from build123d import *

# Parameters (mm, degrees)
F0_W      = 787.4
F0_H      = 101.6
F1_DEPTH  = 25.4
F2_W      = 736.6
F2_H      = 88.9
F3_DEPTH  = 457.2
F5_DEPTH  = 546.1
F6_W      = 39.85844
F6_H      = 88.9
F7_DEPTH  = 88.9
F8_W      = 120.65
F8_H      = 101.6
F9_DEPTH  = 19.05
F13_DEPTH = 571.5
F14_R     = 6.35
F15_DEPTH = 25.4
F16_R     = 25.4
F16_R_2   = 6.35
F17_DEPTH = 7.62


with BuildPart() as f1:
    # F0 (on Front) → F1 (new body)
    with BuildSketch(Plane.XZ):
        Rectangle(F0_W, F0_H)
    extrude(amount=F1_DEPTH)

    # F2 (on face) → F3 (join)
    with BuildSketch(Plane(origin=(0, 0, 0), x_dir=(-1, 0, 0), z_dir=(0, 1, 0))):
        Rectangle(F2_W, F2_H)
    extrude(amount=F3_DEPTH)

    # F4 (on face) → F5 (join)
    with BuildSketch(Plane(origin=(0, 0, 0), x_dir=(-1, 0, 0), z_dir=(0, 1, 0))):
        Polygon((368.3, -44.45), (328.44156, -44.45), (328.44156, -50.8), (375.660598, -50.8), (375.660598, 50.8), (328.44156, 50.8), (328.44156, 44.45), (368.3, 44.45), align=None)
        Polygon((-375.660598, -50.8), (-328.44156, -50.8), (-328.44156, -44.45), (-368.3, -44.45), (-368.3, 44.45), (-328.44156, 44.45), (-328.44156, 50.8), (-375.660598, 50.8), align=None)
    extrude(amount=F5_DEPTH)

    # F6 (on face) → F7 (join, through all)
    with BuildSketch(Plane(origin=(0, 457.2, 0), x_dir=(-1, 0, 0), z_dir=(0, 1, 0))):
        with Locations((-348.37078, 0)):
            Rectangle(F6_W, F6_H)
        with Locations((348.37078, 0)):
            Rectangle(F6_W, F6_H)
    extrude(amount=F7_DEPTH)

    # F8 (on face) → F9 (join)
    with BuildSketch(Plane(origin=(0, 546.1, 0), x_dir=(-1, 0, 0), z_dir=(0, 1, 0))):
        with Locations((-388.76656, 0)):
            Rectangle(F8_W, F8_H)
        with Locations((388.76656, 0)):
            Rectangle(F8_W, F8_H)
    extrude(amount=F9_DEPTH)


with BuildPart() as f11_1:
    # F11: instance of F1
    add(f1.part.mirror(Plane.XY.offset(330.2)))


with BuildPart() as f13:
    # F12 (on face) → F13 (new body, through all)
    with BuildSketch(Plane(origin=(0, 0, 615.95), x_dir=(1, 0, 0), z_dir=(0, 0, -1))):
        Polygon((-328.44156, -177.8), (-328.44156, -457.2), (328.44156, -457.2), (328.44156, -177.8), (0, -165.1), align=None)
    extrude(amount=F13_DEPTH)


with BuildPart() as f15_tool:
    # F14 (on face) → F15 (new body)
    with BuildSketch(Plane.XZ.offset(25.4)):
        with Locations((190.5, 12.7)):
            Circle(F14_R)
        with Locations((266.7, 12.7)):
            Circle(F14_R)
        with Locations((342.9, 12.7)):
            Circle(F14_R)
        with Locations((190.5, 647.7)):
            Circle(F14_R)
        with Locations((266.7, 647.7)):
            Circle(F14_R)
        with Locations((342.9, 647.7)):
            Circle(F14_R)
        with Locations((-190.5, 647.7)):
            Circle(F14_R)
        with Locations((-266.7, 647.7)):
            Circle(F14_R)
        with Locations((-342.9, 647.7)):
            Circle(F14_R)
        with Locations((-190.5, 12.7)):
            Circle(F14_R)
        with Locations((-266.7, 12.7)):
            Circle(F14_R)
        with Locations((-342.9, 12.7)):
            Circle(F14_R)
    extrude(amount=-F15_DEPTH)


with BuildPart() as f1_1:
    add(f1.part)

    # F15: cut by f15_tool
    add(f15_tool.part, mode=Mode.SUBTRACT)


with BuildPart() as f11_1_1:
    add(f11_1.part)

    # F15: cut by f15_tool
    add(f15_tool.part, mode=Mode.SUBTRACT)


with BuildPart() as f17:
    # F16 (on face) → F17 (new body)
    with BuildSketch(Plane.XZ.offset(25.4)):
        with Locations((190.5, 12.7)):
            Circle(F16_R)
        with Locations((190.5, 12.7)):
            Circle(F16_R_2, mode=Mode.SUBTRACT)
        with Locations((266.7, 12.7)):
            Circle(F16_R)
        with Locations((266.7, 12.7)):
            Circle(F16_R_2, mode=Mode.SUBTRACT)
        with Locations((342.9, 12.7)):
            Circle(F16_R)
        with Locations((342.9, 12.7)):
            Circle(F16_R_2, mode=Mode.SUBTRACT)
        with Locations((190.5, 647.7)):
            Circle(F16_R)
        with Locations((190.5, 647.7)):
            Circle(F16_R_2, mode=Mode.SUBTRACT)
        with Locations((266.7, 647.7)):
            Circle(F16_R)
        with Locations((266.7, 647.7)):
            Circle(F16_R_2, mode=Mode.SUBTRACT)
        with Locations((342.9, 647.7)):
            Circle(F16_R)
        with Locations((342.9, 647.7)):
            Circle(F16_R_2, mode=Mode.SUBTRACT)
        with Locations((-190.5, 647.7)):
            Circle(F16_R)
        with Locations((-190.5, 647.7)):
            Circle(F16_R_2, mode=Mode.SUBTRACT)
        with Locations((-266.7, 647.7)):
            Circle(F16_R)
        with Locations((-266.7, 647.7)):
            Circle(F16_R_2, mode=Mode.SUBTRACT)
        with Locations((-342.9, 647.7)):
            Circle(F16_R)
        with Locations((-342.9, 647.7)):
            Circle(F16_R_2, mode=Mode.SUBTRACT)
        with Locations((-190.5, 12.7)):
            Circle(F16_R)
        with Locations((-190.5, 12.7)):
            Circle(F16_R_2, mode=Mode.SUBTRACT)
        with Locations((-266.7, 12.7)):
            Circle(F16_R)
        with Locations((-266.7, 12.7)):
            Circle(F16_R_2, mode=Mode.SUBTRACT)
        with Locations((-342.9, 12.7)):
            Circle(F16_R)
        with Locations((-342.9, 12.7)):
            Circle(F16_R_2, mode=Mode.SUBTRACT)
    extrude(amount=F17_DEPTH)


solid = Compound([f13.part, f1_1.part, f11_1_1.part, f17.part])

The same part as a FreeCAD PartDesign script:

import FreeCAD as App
import Part
import Sketcher
Q = App.Units.Quantity


def add_polygon(sketch, points):
    """Adds a closed chain of lines whose ends are joined by coincident constraints."""
    first, n = sketch.GeometryCount, len(points)
    for a, b in zip(points, points[1:] + points[:1]):
        sketch.addGeometry(Part.LineSegment(App.Vector(*a, 0), App.Vector(*b, 0)), False)
    for i in range(n):
        sketch.addConstraint(Sketcher.Constraint("Coincident", first + i, 2, first + (i + 1) % n, 1))

doc = App.newDocument("Part")
body = doc.addObject("PartDesign::Body", "Body")

sketch1 = doc.addObject("Sketcher::SketchObject", "Sketch")
body.addObject(sketch1)
sketch1.AttachmentSupport = (doc.XZ_Plane, [""])
sketch1.MapMode = "FlatFace"
add_polygon(sketch1, [(-394, 51), (-394, -51), (394, -51), (394, 51)])
sketch1.addConstraint([
    Sketcher.Constraint("Vertical", 0),
    Sketcher.Constraint("Horizontal", 1),
    Sketcher.Constraint("Vertical", 2),
    Sketcher.Constraint("Horizontal", 3),
    Sketcher.Constraint("Symmetric", 0, 2, 2, 2, -1, 1),
    Sketcher.Constraint("DistanceX", 1, 1, 1, 2, Q("31 in")),
    Sketcher.Constraint("DistanceY", 0, 2, 0, 1, Q("4 in")),
])
pad1 = doc.addObject("PartDesign::Pad", "Pad")
body.addObject(pad1)
pad1.Profile = sketch1
pad1.Length = Q("1 in")

sketch2 = doc.addObject("Sketcher::SketchObject", "Sketch001")
body.addObject(sketch2)
sketch2.AttachmentSupport = (doc.XZ_Plane, [""])
sketch2.MapMode = "FlatFace"
add_polygon(sketch2, [(368, 44), (368, -44), (-368, -44), (-368, 44)])
sketch2.addConstraint([
    Sketcher.Constraint("Vertical", 0),
    Sketcher.Constraint("Horizontal", 1),
    Sketcher.Constraint("Vertical", 2),
    Sketcher.Constraint("Horizontal", 3),
    Sketcher.Constraint("Symmetric", 0, 2, 2, 2, -1, 1),
    Sketcher.Constraint("DistanceX", 1, 2, 1, 1, Q("29 in")),
    Sketcher.Constraint("DistanceY", 0, 2, 0, 1, Q("3.5 in")),
])
pad2 = doc.addObject("PartDesign::Pad", "Pad001")
body.addObject(pad2)
pad2.Profile = sketch2
pad2.Length = Q("18 in")
pad2.Reversed = True

sketch3 = doc.addObject("Sketcher::SketchObject", "Sketch002")
body.addObject(sketch3)
sketch3.AttachmentSupport = (doc.XZ_Plane, [""])
sketch3.MapMode = "FlatFace"
add_polygon(sketch3, [(-368, -44), (-328, -44), (-328, -51), (-376, -51), (-376, 51), (-328, 51), (-328, 44), (-368, 44)])
add_polygon(sketch3, [(376, -51), (328, -51), (328, -44), (368, -44), (368, 44), (328, 44), (328, 51), (376, 51)])
sketch3.addConstraint([
    Sketcher.Constraint("Horizontal", 0),
    Sketcher.Constraint("Vertical", 1),
    Sketcher.Constraint("Horizontal", 2),
    Sketcher.Constraint("Vertical", 3),
    Sketcher.Constraint("Horizontal", 4),
    Sketcher.Constraint("Vertical", 5),
    Sketcher.Constraint("Horizontal", 6),
    Sketcher.Constraint("Vertical", 7),
    Sketcher.Constraint("Horizontal", 8),
    Sketcher.Constraint("Vertical", 9),
    Sketcher.Constraint("Horizontal", 10),
    Sketcher.Constraint("Vertical", 11),
    Sketcher.Constraint("Horizontal", 12),
    Sketcher.Constraint("Vertical", 13),
    Sketcher.Constraint("Horizontal", 14),
    Sketcher.Constraint("Vertical", 15),
    Sketcher.Constraint("Symmetric", 4, 2, 8, 2, -1, 1),
    Sketcher.Constraint("Symmetric", 6, 2, 10, 2, -1, 1),
    Sketcher.Constraint("Symmetric", 0, 2, 12, 2, -1, 1),
    Sketcher.Constraint("Symmetric", 2, 2, 14, 2, -1, 1),
    Sketcher.Constraint("Symmetric", 1, 2, 8, 2, -2),
    Sketcher.Constraint("Horizontal", 7, 2, 9, 2),
    Sketcher.Constraint("DistanceY", 3, 1, 3, 2, Q("4 in")),
    Sketcher.Constraint("DistanceY", 7, 2, 7, 1, Q("3.5 in")),
    Sketcher.Constraint("DistanceX", 6, 2, -1, 1, Q("14.5 in")),
    Sketcher.Constraint("DistanceX", 0, 1, 0, 2, 39.85844),
    Sketcher.Constraint("DistanceX", 2, 2, 2, 1, 47.219038),
])
pad3 = doc.addObject("PartDesign::Pad", "Pad002")
body.addObject(pad3)
pad3.Profile = sketch3
pad3.Length = Q("21.5 in")
pad3.Reversed = True

sketch4 = doc.addObject("Sketcher::SketchObject", "Sketch003")
body.addObject(sketch4)
sketch4.AttachmentSupport = (doc.XZ_Plane, [""])
sketch4.MapMode = "FlatFace"
sketch4.AttachmentOffset = App.Placement(App.Vector(0, 0, -18 * 25.4), App.Rotation())
add_polygon(sketch4, [(368, 44), (368, -44), (328, -44), (328, 44)])
add_polygon(sketch4, [(-328, 44), (-328, -44), (-368, -44), (-368, 44)])
sketch4.addConstraint([
    Sketcher.Constraint("Vertical", 0),
    Sketcher.Constraint("Horizontal", 1),
    Sketcher.Constraint("Vertical", 2),
    Sketcher.Constraint("Horizontal", 3),
    Sketcher.Constraint("Vertical", 4),
    Sketcher.Constraint("Horizontal", 5),
    Sketcher.Constraint("Vertical", 6),
    Sketcher.Constraint("Horizontal", 7),
    Sketcher.Constraint("Symmetric", 2, 2, 4, 2, -1, 1),
    Sketcher.Constraint("Symmetric", 0, 2, 6, 2, -1, 1),
    Sketcher.Constraint("Horizontal", 1, 2, 4, 2),
    Sketcher.Constraint("DistanceY", 0, 2, 0, 1, Q("3.5 in")),
    Sketcher.Constraint("DistanceX", 5, 2, 0, 2, Q("29 in")),
    Sketcher.Constraint("DistanceX", 1, 2, 1, 1, 39.85844),
])
pad4 = doc.addObject("PartDesign::Pad", "Pad003")
body.addObject(pad4)
pad4.Profile = sketch4
pad4.Length = Q("3.5 in")
pad4.Reversed = True

sketch5 = doc.addObject("Sketcher::SketchObject", "Sketch004")
body.addObject(sketch5)
sketch5.AttachmentSupport = (doc.XZ_Plane, [""])
sketch5.MapMode = "FlatFace"
sketch5.AttachmentOffset = App.Placement(App.Vector(0, 0, -21.5 * 25.4), App.Rotation())
add_polygon(sketch5, [(449, 51), (449, -51), (328, -51), (328, 51)])
add_polygon(sketch5, [(-328, 51), (-328, -51), (-449, -51), (-449, 51)])
sketch5.addConstraint([
    Sketcher.Constraint("Vertical", 0),
    Sketcher.Constraint("Horizontal", 1),
    Sketcher.Constraint("Vertical", 2),
    Sketcher.Constraint("Horizontal", 3),
    Sketcher.Constraint("Vertical", 4),
    Sketcher.Constraint("Horizontal", 5),
    Sketcher.Constraint("Vertical", 6),
    Sketcher.Constraint("Horizontal", 7),
    Sketcher.Constraint("Symmetric", 2, 2, 4, 2, -1, 1),
    Sketcher.Constraint("Symmetric", 0, 2, 6, 2, -1, 1),
    Sketcher.Constraint("Horizontal", 1, 2, 4, 2),
    Sketcher.Constraint("DistanceY", 0, 2, 0, 1, Q("4 in")),
    Sketcher.Constraint("DistanceX", 1, 2, 1, 1, Q("4.75 in")),
    Sketcher.Constraint("DistanceX", -1, 1, 0, 2, 449.09156),
])
pad5 = doc.addObject("PartDesign::Pad", "Pad004")
body.addObject(pad5)
pad5.Profile = sketch5
pad5.Length = Q("0.75 in")
pad5.Reversed = True
body2 = doc.addObject("PartDesign::Body", "Body001")
doc.recompute()

mirroring = doc.addObject("Part::Mirroring", "Mirroring")
mirroring.Source = body
mirroring.Base = App.Vector(0, 0, 330.2)
mirroring.Normal = App.Vector(0, 0, 1)
body2.BaseFeature = mirroring
doc.recompute()
body3 = doc.addObject("PartDesign::Body", "Body002")

sketch6 = doc.addObject("Sketcher::SketchObject", "Sketch005")
body3.addObject(sketch6)
sketch6.AttachmentSupport = (doc.getObject("XY_Plane002"), [""])
sketch6.MapMode = "FlatFace"
sketch6.AttachmentOffset = App.Placement(App.Vector(0, 0, 24.25 * 25.4), App.Rotation())
add_polygon(sketch6, [(-328, 178), (-328, 457), (328, 457), (328, 178), (0, 165)])
sketch6.addConstraint([
    Sketcher.Constraint("Vertical", 0),
    Sketcher.Constraint("Horizontal", 1),
    Sketcher.Constraint("Vertical", 2),
    Sketcher.Constraint("Symmetric", 2, 2, 4, 2, -2),
    Sketcher.Constraint("PointOnObject", 3, 2, -2),
    Sketcher.Constraint("DistanceY", 0, 1, 0, 2, Q("11 in")),
    Sketcher.Constraint("DistanceY", -1, 1, 0, 2, Q("18 in")),
    Sketcher.Constraint("DistanceY", -1, 1, 3, 2, Q("6.5 in")),
    Sketcher.Constraint("DistanceX", 1, 1, 1, 2, 656.88312),
])
pad6 = doc.addObject("PartDesign::Pad", "Pad005")
body3.addObject(pad6)
pad6.Profile = sketch6
pad6.Length = Q("22.5 in")
pad6.Reversed = True
body4 = doc.addObject("PartDesign::Body", "Body003")
body4.AllowCompound = True

sketch7 = doc.addObject("Sketcher::SketchObject", "Sketch006")
body4.addObject(sketch7)
sketch7.AttachmentSupport = (doc.getObject("XZ_Plane003"), [""])
sketch7.MapMode = "FlatFace"
sketch7.AttachmentOffset = App.Placement(App.Vector(0, 0, 1 * 25.4), App.Rotation())
sketch7.addGeometry([
    Part.Circle(App.Vector(190, 13, 0), App.Vector(0, 0, 1), 6),
    Part.Circle(App.Vector(267, 13, 0), App.Vector(0, 0, 1), 6),
    Part.Circle(App.Vector(343, 13, 0), App.Vector(0, 0, 1), 6),
    Part.Circle(App.Vector(190, 648, 0), App.Vector(0, 0, 1), 6),
    Part.Circle(App.Vector(267, 648, 0), App.Vector(0, 0, 1), 6),
    Part.Circle(App.Vector(343, 648, 0), App.Vector(0, 0, 1), 6),
    Part.Circle(App.Vector(-190, 648, 0), App.Vector(0, 0, 1), 6),
    Part.Circle(App.Vector(-267, 648, 0), App.Vector(0, 0, 1), 6),
    Part.Circle(App.Vector(-343, 648, 0), App.Vector(0, 0, 1), 6),
    Part.Circle(App.Vector(-190, 13, 0), App.Vector(0, 0, 1), 6),
    Part.Circle(App.Vector(-267, 13, 0), App.Vector(0, 0, 1), 6),
    Part.Circle(App.Vector(-343, 13, 0), App.Vector(0, 0, 1), 6),
], False)
sketch7.addConstraint([
    Sketcher.Constraint("Equal", 0, 1),
    Sketcher.Constraint("Equal", 1, 2),
    Sketcher.Constraint("Equal", 2, 3),
    Sketcher.Constraint("Equal", 3, 4),
    Sketcher.Constraint("Equal", 4, 5),
    Sketcher.Constraint("Equal", 5, 6),
    Sketcher.Constraint("Equal", 6, 7),
    Sketcher.Constraint("Equal", 7, 8),
    Sketcher.Constraint("Equal", 8, 9),
    Sketcher.Constraint("Equal", 9, 10),
    Sketcher.Constraint("Equal", 10, 11),
    Sketcher.Constraint("Symmetric", 3, 3, 6, 3, -2),
    Sketcher.Constraint("Symmetric", 4, 3, 7, 3, -2),
    Sketcher.Constraint("Symmetric", 5, 3, 8, 3, -2),
    Sketcher.Constraint("Symmetric", 0, 3, 9, 3, -2),
    Sketcher.Constraint("Symmetric", 1, 3, 10, 3, -2),
    Sketcher.Constraint("Symmetric", 2, 3, 11, 3, -2),
    Sketcher.Constraint("Horizontal", 0, 3, 1, 3),
    Sketcher.Constraint("Horizontal", 1, 3, 2, 3),
    Sketcher.Constraint("Horizontal", 3, 3, 4, 3),
    Sketcher.Constraint("Horizontal", 4, 3, 5, 3),
    Sketcher.Constraint("Vertical", 0, 3, 3, 3),
    Sketcher.Constraint("Vertical", 1, 3, 4, 3),
    Sketcher.Constraint("Vertical", 2, 3, 5, 3),
    Sketcher.Constraint("Diameter", 0, Q("0.5 in")),
    Sketcher.Constraint("DistanceX", 0, 3, 1, 3, Q("3 in")),
    Sketcher.Constraint("DistanceX", 1, 3, 2, 3, Q("3 in")),
    Sketcher.Constraint("DistanceY", 0, 3, 3, 3, Q("25 in")),
    Sketcher.Constraint("DistanceX", 6, 3, 3, 3, Q("15 in")),
    Sketcher.Constraint("DistanceY", -1, 1, 0, 3, Q("0.5 in")),
])
pad7 = doc.addObject("PartDesign::Pad", "Pad006")
body4.addObject(pad7)
pad7.Profile = sketch7
pad7.Length = Q("1 in")
pad7.Reversed = True
doc.recompute()

body5 = doc.addObject("PartDesign::Body", "Body004")
body5.BaseFeature = body4
boolean = doc.addObject("PartDesign::Boolean", "Boolean")
body.addObject(boolean)
boolean.Type = "Cut"
boolean.addObjects([body5])
doc.recompute()

boolean2 = doc.addObject("PartDesign::Boolean", "Boolean001")
body2.addObject(boolean2)
boolean2.Type = "Cut"
boolean2.addObjects([body4])
body6 = doc.addObject("PartDesign::Body", "Body005")
body6.AllowCompound = True

sketch8 = doc.addObject("Sketcher::SketchObject", "Sketch007")
body6.addObject(sketch8)
sketch8.AttachmentSupport = (doc.getObject("XZ_Plane005"), [""])
sketch8.MapMode = "FlatFace"
sketch8.AttachmentOffset = App.Placement(App.Vector(0, 0, 1 * 25.4), App.Rotation())
sketch8.addGeometry([
    Part.Circle(App.Vector(190, 13, 0), App.Vector(0, 0, 1), 25),
    Part.Circle(App.Vector(190, 13, 0), App.Vector(0, 0, 1), 6),
    Part.Circle(App.Vector(267, 13, 0), App.Vector(0, 0, 1), 25),
    Part.Circle(App.Vector(267, 13, 0), App.Vector(0, 0, 1), 6),
    Part.Circle(App.Vector(343, 13, 0), App.Vector(0, 0, 1), 25),
    Part.Circle(App.Vector(343, 13, 0), App.Vector(0, 0, 1), 6),
    Part.Circle(App.Vector(190, 648, 0), App.Vector(0, 0, 1), 25),
    Part.Circle(App.Vector(190, 648, 0), App.Vector(0, 0, 1), 6),
    Part.Circle(App.Vector(267, 648, 0), App.Vector(0, 0, 1), 25),
    Part.Circle(App.Vector(267, 648, 0), App.Vector(0, 0, 1), 6),
    Part.Circle(App.Vector(343, 648, 0), App.Vector(0, 0, 1), 25),
    Part.Circle(App.Vector(343, 648, 0), App.Vector(0, 0, 1), 6),
    Part.Circle(App.Vector(-190, 648, 0), App.Vector(0, 0, 1), 25),
    Part.Circle(App.Vector(-190, 648, 0), App.Vector(0, 0, 1), 6),
    Part.Circle(App.Vector(-267, 648, 0), App.Vector(0, 0, 1), 25),
    Part.Circle(App.Vector(-267, 648, 0), App.Vector(0, 0, 1), 6),
    Part.Circle(App.Vector(-343, 648, 0), App.Vector(0, 0, 1), 25),
    Part.Circle(App.Vector(-343, 648, 0), App.Vector(0, 0, 1), 6),
    Part.Circle(App.Vector(-190, 13, 0), App.Vector(0, 0, 1), 25),
    Part.Circle(App.Vector(-190, 13, 0), App.Vector(0, 0, 1), 6),
    Part.Circle(App.Vector(-267, 13, 0), App.Vector(0, 0, 1), 25),
    Part.Circle(App.Vector(-267, 13, 0), App.Vector(0, 0, 1), 6),
    Part.Circle(App.Vector(-343, 13, 0), App.Vector(0, 0, 1), 25),
    Part.Circle(App.Vector(-343, 13, 0), App.Vector(0, 0, 1), 6),
], False)
sketch8.addConstraint([
    Sketcher.Constraint("Coincident", 1, 3, 0, 3),
    Sketcher.Constraint("Coincident", 3, 3, 2, 3),
    Sketcher.Constraint("Coincident", 5, 3, 4, 3),
    Sketcher.Constraint("Coincident", 7, 3, 6, 3),
    Sketcher.Constraint("Coincident", 9, 3, 8, 3),
    Sketcher.Constraint("Coincident", 11, 3, 10, 3),
    Sketcher.Constraint("Coincident", 13, 3, 12, 3),
    Sketcher.Constraint("Coincident", 15, 3, 14, 3),
    Sketcher.Constraint("Coincident", 17, 3, 16, 3),
    Sketcher.Constraint("Coincident", 19, 3, 18, 3),
    Sketcher.Constraint("Coincident", 21, 3, 20, 3),
    Sketcher.Constraint("Coincident", 23, 3, 22, 3),
    Sketcher.Constraint("Equal", 0, 2),
    Sketcher.Constraint("Equal", 1, 3),
    Sketcher.Constraint("Equal", 2, 4),
    Sketcher.Constraint("Equal", 3, 5),
    Sketcher.Constraint("Equal", 4, 6),
    Sketcher.Constraint("Equal", 5, 7),
    Sketcher.Constraint("Equal", 6, 8),
    Sketcher.Constraint("Equal", 7, 9),
    Sketcher.Constraint("Equal", 8, 10),
    Sketcher.Constraint("Equal", 9, 11),
    Sketcher.Constraint("Equal", 10, 12),
    Sketcher.Constraint("Equal", 11, 13),
    Sketcher.Constraint("Equal", 12, 14),
    Sketcher.Constraint("Equal", 13, 15),
    Sketcher.Constraint("Equal", 14, 16),
    Sketcher.Constraint("Equal", 15, 17),
    Sketcher.Constraint("Equal", 16, 18),
    Sketcher.Constraint("Equal", 17, 19),
    Sketcher.Constraint("Equal", 18, 20),
    Sketcher.Constraint("Equal", 19, 21),
    Sketcher.Constraint("Equal", 20, 22),
    Sketcher.Constraint("Equal", 21, 23),
    Sketcher.Constraint("Symmetric", 6, 3, 12, 3, -2),
    Sketcher.Constraint("Symmetric", 8, 3, 14, 3, -2),
    Sketcher.Constraint("Symmetric", 10, 3, 16, 3, -2),
    Sketcher.Constraint("Symmetric", 0, 3, 18, 3, -2),
    Sketcher.Constraint("Symmetric", 2, 3, 20, 3, -2),
    Sketcher.Constraint("Symmetric", 4, 3, 22, 3, -2),
    Sketcher.Constraint("Horizontal", 1, 3, 2, 3),
    Sketcher.Constraint("Horizontal", 3, 3, 4, 3),
    Sketcher.Constraint("Horizontal", 7, 3, 8, 3),
    Sketcher.Constraint("Horizontal", 9, 3, 10, 3),
    Sketcher.Constraint("Vertical", 1, 3, 6, 3),
    Sketcher.Constraint("Vertical", 3, 3, 8, 3),
    Sketcher.Constraint("Vertical", 5, 3, 10, 3),
    Sketcher.Constraint("Diameter", 0, Q("2 in")),
    Sketcher.Constraint("Diameter", 1, Q("0.5 in")),
    Sketcher.Constraint("DistanceX", 0, 3, 2, 3, Q("3 in")),
    Sketcher.Constraint("DistanceX", 2, 3, 4, 3, Q("3 in")),
    Sketcher.Constraint("DistanceY", 0, 3, 6, 3, Q("25 in")),
    Sketcher.Constraint("DistanceX", 12, 3, 6, 3, Q("15 in")),
    Sketcher.Constraint("DistanceY", -1, 1, 0, 3, Q("0.5 in")),
])
pad8 = doc.addObject("PartDesign::Pad", "Pad007")
body6.addObject(pad8)
pad8.Profile = sketch8
pad8.Length = Q("0.3 in")
mirroring.Visibility = False

doc.recompute()
